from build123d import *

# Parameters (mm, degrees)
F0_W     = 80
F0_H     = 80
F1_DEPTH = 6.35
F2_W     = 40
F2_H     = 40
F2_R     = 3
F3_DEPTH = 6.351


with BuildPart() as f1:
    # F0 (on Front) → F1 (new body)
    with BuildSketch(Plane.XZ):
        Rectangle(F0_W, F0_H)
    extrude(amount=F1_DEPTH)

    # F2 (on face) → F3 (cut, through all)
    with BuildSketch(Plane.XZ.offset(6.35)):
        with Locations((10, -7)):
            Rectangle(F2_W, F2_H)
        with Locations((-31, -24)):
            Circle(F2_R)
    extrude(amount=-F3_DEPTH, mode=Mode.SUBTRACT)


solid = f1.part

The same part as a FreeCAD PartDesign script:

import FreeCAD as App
import Part
import Sketcher
from FreeCAD import Vector


def add_polygon(sketch, points):
    """Adds a closed chain of lines whose ends are joined by coincident constraints."""
    first, n = sketch.GeometryCount, len(points)
    for a, b in zip(points, points[1:] + points[:1]):
        sketch.addGeometry(Part.LineSegment(App.Vector(*a, 0), App.Vector(*b, 0)), False)
    for i in range(n):
        sketch.addConstraint(Sketcher.Constraint("Coincident", first + i, 2, first + (i + 1) % n, 1))

doc = App.newDocument("Part")
body = doc.addObject("PartDesign::Body", "Body")

sketch1 = body.newObject("Sketcher::SketchObject", "Sketch")
sketch1.AttachmentSupport = (doc.getObject("XZ_Plane"), [""])
sketch1.MapMode = "FlatFace"
add_polygon(sketch1, [(-40, 40), (-40, -40), (40, -40), (40, 40)])
sketch1.addConstraint([
    Sketcher.Constraint("Vertical", 0),
    Sketcher.Constraint("Horizontal", 1),
    Sketcher.Constraint("Vertical", 2),
    Sketcher.Constraint("Horizontal", 3),
    Sketcher.Constraint("Symmetric", 0, 2, 2, 2, -1, 1),
    Sketcher.Constraint("Equal", 3, 0),
    Sketcher.Constraint("DistanceX", 1, 1, 1, 2, 80.0),
])
pad1 = body.newObject("PartDesign::Pad", "Pad")
pad1.Profile = sketch1
pad1.Length = 6.35

sketch2 = body.newObject("Sketcher::SketchObject", "Sketch001")
sketch2.AttachmentSupport = (doc.getObject("XZ_Plane"), [""])
sketch2.MapMode = "FlatFace"
sketch2.AttachmentOffset = App.Placement(Vector(0, 0, 6.35), App.Rotation())
add_polygon(sketch2, [(-10, 13), (-10, -27), (30, -27), (30, 13)])
sketch2.addGeometry(Part.Circle(Vector(-31, -24, 0), Vector(0, 0, 1), 3), False)
sketch2.addConstraint([
    Sketcher.Constraint("Vertical", 0),
    Sketcher.Constraint("Horizontal", 1),
    Sketcher.Constraint("Vertical", 2),
    Sketcher.Constraint("Horizontal", 3),
    Sketcher.Constraint("Equal", 3, 0),
    Sketcher.Constraint("Diameter", 4, 6.0),
    Sketcher.Constraint("DistanceX", 1, 1, 1, 2, 40.0),
    Sketcher.Constraint("DistanceX", 4, 3, -1, 1, 31.0),
    Sketcher.Constraint("DistanceY", 4, 3, -1, 1, 24.0),
    Sketcher.Constraint("DistanceX", 0, 2, -1, 1, 10.0),
    Sketcher.Constraint("DistanceY", 0, 2, -1, 1, 27.0),
])
pocket1 = body.newObject("PartDesign::Pocket", "Pocket")
pocket1.Profile = sketch2
pocket1.Type = "ThroughAll"

doc.recompute()
